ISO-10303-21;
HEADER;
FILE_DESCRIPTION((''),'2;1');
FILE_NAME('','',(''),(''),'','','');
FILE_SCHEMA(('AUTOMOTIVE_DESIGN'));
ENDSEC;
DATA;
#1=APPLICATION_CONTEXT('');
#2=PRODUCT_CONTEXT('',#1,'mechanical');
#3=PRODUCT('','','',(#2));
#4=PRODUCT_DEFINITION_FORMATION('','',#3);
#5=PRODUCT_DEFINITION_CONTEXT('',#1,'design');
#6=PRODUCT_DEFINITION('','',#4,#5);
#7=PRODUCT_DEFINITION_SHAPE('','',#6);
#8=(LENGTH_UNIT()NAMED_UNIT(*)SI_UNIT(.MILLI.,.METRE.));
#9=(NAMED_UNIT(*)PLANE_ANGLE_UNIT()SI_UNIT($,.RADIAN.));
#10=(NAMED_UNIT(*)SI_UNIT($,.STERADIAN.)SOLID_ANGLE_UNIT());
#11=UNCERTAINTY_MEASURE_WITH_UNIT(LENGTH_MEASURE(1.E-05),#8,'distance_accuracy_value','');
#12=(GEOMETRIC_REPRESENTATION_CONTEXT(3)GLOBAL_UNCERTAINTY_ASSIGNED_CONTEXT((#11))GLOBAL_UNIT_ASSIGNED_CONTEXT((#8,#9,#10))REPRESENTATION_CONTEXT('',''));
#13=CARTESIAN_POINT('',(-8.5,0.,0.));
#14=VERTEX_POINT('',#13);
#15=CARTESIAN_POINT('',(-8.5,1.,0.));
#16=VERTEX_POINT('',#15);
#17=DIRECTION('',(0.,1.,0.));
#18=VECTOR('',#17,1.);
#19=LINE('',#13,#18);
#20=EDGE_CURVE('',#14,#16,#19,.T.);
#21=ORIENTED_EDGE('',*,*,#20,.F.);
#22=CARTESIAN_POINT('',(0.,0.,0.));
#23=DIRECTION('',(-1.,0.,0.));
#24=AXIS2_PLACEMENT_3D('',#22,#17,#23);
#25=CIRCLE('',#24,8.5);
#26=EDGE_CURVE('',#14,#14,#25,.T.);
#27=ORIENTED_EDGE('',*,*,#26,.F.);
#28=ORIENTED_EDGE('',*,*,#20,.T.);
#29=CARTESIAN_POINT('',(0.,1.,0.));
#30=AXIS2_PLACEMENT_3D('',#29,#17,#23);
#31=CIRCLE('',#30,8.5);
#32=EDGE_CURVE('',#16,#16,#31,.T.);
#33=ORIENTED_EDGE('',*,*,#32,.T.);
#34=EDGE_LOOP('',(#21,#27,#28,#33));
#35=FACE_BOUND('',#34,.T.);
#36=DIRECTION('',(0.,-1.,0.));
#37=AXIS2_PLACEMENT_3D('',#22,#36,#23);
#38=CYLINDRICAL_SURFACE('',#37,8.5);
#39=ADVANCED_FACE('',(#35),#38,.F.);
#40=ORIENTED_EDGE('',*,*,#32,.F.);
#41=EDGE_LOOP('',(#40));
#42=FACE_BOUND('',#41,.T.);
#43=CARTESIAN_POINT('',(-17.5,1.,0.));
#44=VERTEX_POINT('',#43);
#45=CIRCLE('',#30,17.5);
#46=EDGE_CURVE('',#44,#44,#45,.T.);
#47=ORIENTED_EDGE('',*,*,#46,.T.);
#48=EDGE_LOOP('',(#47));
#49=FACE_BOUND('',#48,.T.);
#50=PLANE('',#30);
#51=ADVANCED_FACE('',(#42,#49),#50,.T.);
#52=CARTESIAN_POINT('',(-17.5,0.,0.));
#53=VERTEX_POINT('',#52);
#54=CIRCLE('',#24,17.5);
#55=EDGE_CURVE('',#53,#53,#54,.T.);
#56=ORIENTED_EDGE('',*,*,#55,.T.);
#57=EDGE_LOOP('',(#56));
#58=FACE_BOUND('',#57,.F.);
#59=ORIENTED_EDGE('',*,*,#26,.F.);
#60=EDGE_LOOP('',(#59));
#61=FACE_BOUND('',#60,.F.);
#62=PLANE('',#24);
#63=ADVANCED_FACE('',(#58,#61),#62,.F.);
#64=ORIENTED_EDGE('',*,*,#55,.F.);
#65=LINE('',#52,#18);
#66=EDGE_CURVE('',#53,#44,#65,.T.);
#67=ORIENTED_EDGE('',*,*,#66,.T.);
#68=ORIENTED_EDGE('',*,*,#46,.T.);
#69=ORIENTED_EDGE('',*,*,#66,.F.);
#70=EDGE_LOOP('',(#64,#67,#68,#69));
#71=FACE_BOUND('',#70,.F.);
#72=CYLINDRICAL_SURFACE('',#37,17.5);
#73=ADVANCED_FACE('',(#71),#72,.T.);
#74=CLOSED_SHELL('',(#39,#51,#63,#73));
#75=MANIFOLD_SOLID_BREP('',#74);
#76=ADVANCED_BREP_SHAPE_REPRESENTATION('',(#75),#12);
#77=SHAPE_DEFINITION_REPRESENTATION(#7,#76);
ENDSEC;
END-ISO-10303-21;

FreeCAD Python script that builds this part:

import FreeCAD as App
import Part
import Sketcher

doc = App.newDocument("Part")
params = doc.addObject("Spreadsheet::Sheet", "Params")
for row, (alias, value) in enumerate([
    ("sketch1_diameter", "35 mm"),
    ("sketch1_diameter2", "17 mm"),
    ("pad1_length", "1 mm"),
], start=1):
    params.set(f"A{row}", alias)
    params.set(f"B{row}", "=" + value)
    params.setAlias(f"B{row}", alias)

body = doc.addObject("PartDesign::Body", "Body")

sketch1 = body.newObject("Sketcher::SketchObject", "Sketch")
sketch1.AttachmentSupport = (doc.getObject("XZ_Plane"), [""])
sketch1.MapMode = "FlatFace"
sketch1.addGeometry([
    Part.Circle(App.Vector(0, 0, 0), App.Vector(0, 0, 1), 17.5),
    Part.Circle(App.Vector(0, 0, 0), App.Vector(0, 0, 1), 8.5),
], False)
sketch1.addConstraint([
    Sketcher.Constraint("Coincident", 0, 3, -1, 1),
    Sketcher.Constraint("Coincident", 1, 3, -1, 1),
    Sketcher.Constraint("Diameter", 0, 35.0),
    Sketcher.Constraint("Diameter", 1, 17.0),
])
sketch1.setExpression("Constraints[2]", "Params.sketch1_diameter")
sketch1.setExpression("Constraints[3]", "Params.sketch1_diameter2")
pad1 = body.newObject("PartDesign::Pad", "Pad")
pad1.Profile = sketch1
pad1.setExpression("Length", "Params.pad1_length")
pad1.Reversed = True

doc.recompute()
